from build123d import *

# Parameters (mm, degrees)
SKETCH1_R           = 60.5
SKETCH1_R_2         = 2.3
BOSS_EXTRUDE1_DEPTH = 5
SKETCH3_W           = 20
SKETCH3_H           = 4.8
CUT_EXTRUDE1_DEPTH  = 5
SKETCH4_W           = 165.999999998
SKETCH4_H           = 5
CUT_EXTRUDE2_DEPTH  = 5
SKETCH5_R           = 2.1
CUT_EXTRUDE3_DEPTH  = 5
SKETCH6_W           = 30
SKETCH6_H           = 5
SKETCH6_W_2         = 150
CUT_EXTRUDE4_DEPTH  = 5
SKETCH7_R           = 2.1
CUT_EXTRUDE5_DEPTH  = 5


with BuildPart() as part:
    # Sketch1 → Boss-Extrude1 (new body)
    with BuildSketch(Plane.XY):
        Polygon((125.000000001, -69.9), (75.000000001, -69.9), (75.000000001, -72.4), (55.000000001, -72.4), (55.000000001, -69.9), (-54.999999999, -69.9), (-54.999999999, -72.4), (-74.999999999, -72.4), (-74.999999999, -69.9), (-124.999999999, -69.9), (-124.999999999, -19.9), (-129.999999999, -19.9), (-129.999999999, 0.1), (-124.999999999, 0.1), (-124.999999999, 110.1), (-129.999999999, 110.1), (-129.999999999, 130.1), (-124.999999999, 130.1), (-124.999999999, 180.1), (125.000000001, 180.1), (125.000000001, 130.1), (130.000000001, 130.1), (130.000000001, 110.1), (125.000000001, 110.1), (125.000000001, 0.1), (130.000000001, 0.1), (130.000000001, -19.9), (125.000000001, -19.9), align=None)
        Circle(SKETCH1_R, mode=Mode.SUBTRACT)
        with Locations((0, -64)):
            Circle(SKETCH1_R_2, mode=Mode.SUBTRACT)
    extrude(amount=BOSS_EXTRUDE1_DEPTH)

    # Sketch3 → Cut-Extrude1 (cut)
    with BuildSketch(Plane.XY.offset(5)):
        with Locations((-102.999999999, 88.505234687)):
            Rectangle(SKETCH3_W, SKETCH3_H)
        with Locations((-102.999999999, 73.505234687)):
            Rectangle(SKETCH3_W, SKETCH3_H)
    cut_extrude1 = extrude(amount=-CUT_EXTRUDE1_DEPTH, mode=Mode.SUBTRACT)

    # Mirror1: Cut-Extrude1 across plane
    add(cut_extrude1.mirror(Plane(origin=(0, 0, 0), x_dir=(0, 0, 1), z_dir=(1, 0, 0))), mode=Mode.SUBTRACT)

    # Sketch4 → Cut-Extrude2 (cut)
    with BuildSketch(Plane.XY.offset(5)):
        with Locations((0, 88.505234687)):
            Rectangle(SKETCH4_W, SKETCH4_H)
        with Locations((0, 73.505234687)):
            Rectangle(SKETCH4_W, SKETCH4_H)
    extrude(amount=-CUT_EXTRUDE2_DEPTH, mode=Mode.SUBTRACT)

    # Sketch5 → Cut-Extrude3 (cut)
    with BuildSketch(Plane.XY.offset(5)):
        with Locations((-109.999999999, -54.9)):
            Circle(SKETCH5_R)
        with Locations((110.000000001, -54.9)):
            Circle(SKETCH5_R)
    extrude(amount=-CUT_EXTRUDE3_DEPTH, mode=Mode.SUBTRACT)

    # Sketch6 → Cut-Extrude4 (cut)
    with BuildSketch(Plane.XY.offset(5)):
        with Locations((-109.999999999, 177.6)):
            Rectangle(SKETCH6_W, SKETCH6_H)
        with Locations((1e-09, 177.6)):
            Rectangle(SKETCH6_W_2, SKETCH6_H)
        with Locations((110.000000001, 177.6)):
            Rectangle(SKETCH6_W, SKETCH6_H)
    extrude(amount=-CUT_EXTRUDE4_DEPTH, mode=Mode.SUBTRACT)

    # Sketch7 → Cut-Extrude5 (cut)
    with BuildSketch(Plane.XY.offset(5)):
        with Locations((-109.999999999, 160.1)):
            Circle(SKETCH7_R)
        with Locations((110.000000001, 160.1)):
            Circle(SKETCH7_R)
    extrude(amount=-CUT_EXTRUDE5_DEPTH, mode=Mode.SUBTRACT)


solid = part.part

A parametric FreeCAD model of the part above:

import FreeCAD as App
import Part
import Sketcher

doc = App.newDocument("Part")
params = doc.addObject("Spreadsheet::Sheet", "Params")
for row, (alias, value) in enumerate([
    ("sketch1_diameter", "121 mm"),
    ("sketch1_diameter2", "4.6 mm"),
    ("sketch1_width", "50 mm"),
    ("sketch1_width2", "5 mm"),
    ("sketch1_width3", "250 mm"),
    ("pad1_length", "5 mm"),
    ("sketch2_width", "20 mm"),
    ("sketch2_height", "4.8 mm"),
    ("pocket1_length", "5 mm"),
    ("sketch3_width", "166 mm"),
    ("sketch3_height", "5 mm"),
    ("pocket2_length", "5 mm"),
    ("sketch4_diameter", "4.2 mm"),
    ("pocket3_length", "5 mm"),
    ("sketch5_width", "30 mm"),
    ("sketch5_width2", "150 mm"),
    ("sketch5_height", "5 mm"),
    ("pocket4_length", "5 mm"),
    ("sketch6_diameter", "4.2 mm"),
    ("pocket5_length", "5 mm"),
], start=1):
    params.set(f"A{row}", alias)
    params.set(f"B{row}", "=" + value)
    params.setAlias(f"B{row}", alias)

body = doc.addObject("PartDesign::Body", "Body")

sketch1 = body.newObject("Sketcher::SketchObject", "Sketch")
sketch1.AttachmentSupport = (doc.getObject("XY_Plane"), [""])
sketch1.MapMode = "FlatFace"
sketch1.addGeometry(Part.LineSegment(App.Vector(75, -69.9, 0), App.Vector(125, -69.9, 0)), False)
sketch1.addGeometry(Part.LineSegment(App.Vector(125, -69.9, 0), App.Vector(125, -19.9, 0)), False)
sketch1.addGeometry(Part.LineSegment(App.Vector(125, -19.9, 0), App.Vector(130, -19.9, 0)), False)
sketch1.addGeometry(Part.LineSegment(App.Vector(130, -19.9, 0), App.Vector(130, 0.1, 0)), False)
sketch1.addGeometry(Part.LineSegment(App.Vector(130, 0.1, 0), App.Vector(125, 0.1, 0)), False)
sketch1.addGeometry(Part.LineSegment(App.Vector(125, 0.1, 0), App.Vector(125, 110.1, 0)), False)
sketch1.addGeometry(Part.LineSegment(App.Vector(125, 110.1, 0), App.Vector(130, 110.1, 0)), False)
sketch1.addGeometry(Part.LineSegment(App.Vector(130, 110.1, 0), App.Vector(130, 130.1, 0)), False)
sketch1.addGeometry(Part.LineSegment(App.Vector(130, 130.1, 0), App.Vector(125, 130.1, 0)), False)
sketch1.addGeometry(Part.LineSegment(App.Vector(125, 130.1, 0), App.Vector(125, 180.1, 0)), False)
sketch1.addGeometry(Part.LineSegment(App.Vector(125, 180.1, 0), App.Vector(-125, 180.1, 0)), False)
sketch1.addGeometry(Part.LineSegment(App.Vector(-125, 180.1, 0), App.Vector(-125, 130.1, 0)), False)
sketch1.addGeometry(Part.LineSegment(App.Vector(-125, 130.1, 0), App.Vector(-130, 130.1, 0)), False)
sketch1.addGeometry(Part.LineSegment(App.Vector(-130, 130.1, 0), App.Vector(-130, 110.1, 0)), False)
sketch1.addGeometry(Part.LineSegment(App.Vector(-130, 110.1, 0), App.Vector(-125, 110.1, 0)), False)
sketch1.addGeometry(Part.LineSegment(App.Vector(-125, 110.1, 0), App.Vector(-125, 0.1, 0)), False)
sketch1.addGeometry(Part.LineSegment(App.Vector(-125, 0.1, 0), App.Vector(-130, 0.1, 0)), False)
sketch1.addGeometry(Part.LineSegment(App.Vector(-130, 0.1, 0), App.Vector(-130, -19.9, 0)), False)
sketch1.addGeometry(Part.LineSegment(App.Vector(-130, -19.9, 0), App.Vector(-125, -19.9, 0)), False)
sketch1.addGeometry(Part.LineSegment(App.Vector(-125, -19.9, 0), App.Vector(-125, -69.9, 0)), False)
sketch1.addGeometry(Part.LineSegment(App.Vector(-125, -69.9, 0), App.Vector(-75, -69.9, 0)), False)
sketch1.addGeometry(Part.LineSegment(App.Vector(-75, -69.9, 0), App.Vector(-75, -72.4, 0)), False)
sketch1.addGeometry(Part.LineSegment(App.Vector(-75, -72.4, 0), App.Vector(-55, -72.4, 0)), False)
sketch1.addGeometry(Part.LineSegment(App.Vector(-55, -72.4, 0), App.Vector(-55, -69.9, 0)), False)
sketch1.addGeometry(Part.LineSegment(App.Vector(-55, -69.9, 0), App.Vector(55, -69.9, 0)), False)
sketch1.addGeometry(Part.LineSegment(App.Vector(55, -69.9, 0), App.Vector(55, -72.4, 0)), False)
sketch1.addGeometry(Part.LineSegment(App.Vector(55, -72.4, 0), App.Vector(75, -72.4, 0)), False)
sketch1.addGeometry(Part.LineSegment(App.Vector(75, -72.4, 0), App.Vector(75, -69.9, 0)), False)
sketch1.addGeometry(Part.Circle(App.Vector(0, -64, 0), App.Vector(0, 0, 1), 2.3), False)
sketch1.addGeometry(Part.Circle(App.Vector(0, 0, 0), App.Vector(0, 0, 1), 60.5), False)
sketch1.addConstraint(Sketcher.Constraint("Coincident", 0, 2, 1, 1))
sketch1.addConstraint(Sketcher.Constraint("Coincident", 1, 2, 2, 1))
sketch1.addConstraint(Sketcher.Constraint("Coincident", 2, 2, 3, 1))
sketch1.addConstraint(Sketcher.Constraint("Coincident", 3, 2, 4, 1))
sketch1.addConstraint(Sketcher.Constraint("Coincident", 4, 2, 5, 1))
sketch1.addConstraint(Sketcher.Constraint("Coincident", 5, 2, 6, 1))
sketch1.addConstraint(Sketcher.Constraint("Coincident", 6, 2, 7, 1))
sketch1.addConstraint(Sketcher.Constraint("Coincident", 7, 2, 8, 1))
sketch1.addConstraint(Sketcher.Constraint("Coincident", 8, 2, 9, 1))
sketch1.addConstraint(Sketcher.Constraint("Coincident", 9, 2, 10, 1))
sketch1.addConstraint(Sketcher.Constraint("Coincident", 10, 2, 11, 1))
sketch1.addConstraint(Sketcher.Constraint("Coincident", 11, 2, 12, 1))
sketch1.addConstraint(Sketcher.Constraint("Coincident", 12, 2, 13, 1))
sketch1.addConstraint(Sketcher.Constraint("Coincident", 13, 2, 14, 1))
sketch1.addConstraint(Sketcher.Constraint("Coincident", 14, 2, 15, 1))
sketch1.addConstraint(Sketcher.Constraint("Coincident", 15, 2, 16, 1))
sketch1.addConstraint(Sketcher.Constraint("Coincident", 16, 2, 17, 1))
sketch1.addConstraint(Sketcher.Constraint("Coincident", 17, 2, 18, 1))
sketch1.addConstraint(Sketcher.Constraint("Coincident", 18, 2, 19, 1))
sketch1.addConstraint(Sketcher.Constraint("Coincident", 19, 2, 20, 1))
sketch1.addConstraint(Sketcher.Constraint("Coincident", 20, 2, 21, 1))
sketch1.addConstraint(Sketcher.Constraint("Coincident", 21, 2, 22, 1))
sketch1.addConstraint(Sketcher.Constraint("Coincident", 22, 2, 23, 1))
sketch1.addConstraint(Sketcher.Constraint("Coincident", 23, 2, 24, 1))
sketch1.addConstraint(Sketcher.Constraint("Coincident", 24, 2, 25, 1))
sketch1.addConstraint(Sketcher.Constraint("Coincident", 25, 2, 26, 1))
sketch1.addConstraint(Sketcher.Constraint("Coincident", 26, 2, 27, 1))
sketch1.addConstraint(Sketcher.Constraint("Coincident", 27, 2, 0, 1))
sketch1.addConstraint(Sketcher.Constraint("Horizontal", 0))
sketch1.addConstraint(Sketcher.Constraint("Vertical", 1))
sketch1.addConstraint(Sketcher.Constraint("Horizontal", 2))
sketch1.addConstraint(Sketcher.Constraint("Vertical", 3))
sketch1.addConstraint(Sketcher.Constraint("Horizontal", 4))
sketch1.addConstraint(Sketcher.Constraint("Vertical", 5))
sketch1.addConstraint(Sketcher.Constraint("Horizontal", 6))
sketch1.addConstraint(Sketcher.Constraint("Vertical", 7))
sketch1.addConstraint(Sketcher.Constraint("Horizontal", 8))
sketch1.addConstraint(Sketcher.Constraint("Vertical", 9))
sketch1.addConstraint(Sketcher.Constraint("Horizontal", 10))
sketch1.addConstraint(Sketcher.Constraint("Vertical", 11))
sketch1.addConstraint(Sketcher.Constraint("Horizontal", 12))
sketch1.addConstraint(Sketcher.Constraint("Vertical", 13))
sketch1.addConstraint(Sketcher.Constraint("Horizontal", 14))
sketch1.addConstraint(Sketcher.Constraint("Vertical", 15))
sketch1.addConstraint(Sketcher.Constraint("Horizontal", 16))
sketch1.addConstraint(Sketcher.Constraint("Vertical", 17))
sketch1.addConstraint(Sketcher.Constraint("Horizontal", 18))
sketch1.addConstraint(Sketcher.Constraint("Vertical", 19))
sketch1.addConstraint(Sketcher.Constraint("Horizontal", 20))
sketch1.addConstraint(Sketcher.Constraint("Vertical", 21))
sketch1.addConstraint(Sketcher.Constraint("Horizontal", 22))
sketch1.addConstraint(Sketcher.Constraint("Vertical", 23))
sketch1.addConstraint(Sketcher.Constraint("Horizontal", 24))
sketch1.addConstraint(Sketcher.Constraint("Vertical", 25))
sketch1.addConstraint(Sketcher.Constraint("Horizontal", 26))
sketch1.addConstraint(Sketcher.Constraint("Vertical", 27))
sketch1.addConstraint(Sketcher.Constraint("Coincident", 29, 3, -1, 1))
sketch1.addConstraint(Sketcher.Constraint("Symmetric", 8, 2, 11, 2, -2))
sketch1.addConstraint(Sketcher.Constraint("Symmetric", 6, 2, 13, 2, -2))
sketch1.addConstraint(Sketcher.Constraint("Symmetric", 4, 2, 15, 2, -2))
sketch1.addConstraint(Sketcher.Constraint("Symmetric", 2, 2, 17, 2, -2))
sketch1.addConstraint(Sketcher.Constraint("Symmetric", 0, 2, 19, 2, -2))
sketch1.addConstraint(Sketcher.Constraint("Symmetric", 22, 2, 25, 2, -2))
sketch1.addConstraint(Sketcher.Constraint("PointOnObject", 28, 3, -2))
sketch1.addConstraint(Sketcher.Constraint("Horizontal", 20, 2, 23, 2))
sketch1.addConstraint(Sketcher.Constraint("Vertical", 1, 2, 4, 2))
sketch1.addConstraint(Sketcher.Constraint("Vertical", 3, 2, 6, 2))
sketch1.addConstraint(Sketcher.Constraint("Vertical", 5, 2, 8, 2))
sketch1.addConstraint(Sketcher.Constraint("Equal", 0, 20))
sketch1.addConstraint(Sketcher.Constraint("Equal", 20, 1))
sketch1.addConstraint(Sketcher.Constraint("Equal", 26, 3))
sketch1.addConstraint(Sketcher.Constraint("Equal", 24, 5))
sketch1.addConstraint(Sketcher.Constraint("Equal", 3, 7))
sketch1.addConstraint(Sketcher.Constraint("Equal", 1, 9))
sketch1.addConstraint(Sketcher.Constraint("Diameter", 29, 121.0))
sketch1.addConstraint(Sketcher.Constraint("Diameter", 28, 4.6))
sketch1.addConstraint(Sketcher.Constraint("DistanceX", 0, 1, 0, 2, 50.0))
sketch1.addConstraint(Sketcher.Constraint("DistanceX", 2, 1, 2, 2, 5.0))
sketch1.addConstraint(Sketcher.Constraint("DistanceX", 10, 2, 10, 1, 250.0))
sketch1.addConstraint(Sketcher.Constraint("DistanceX", 22, 1, 22, 2, 20.0))
sketch1.addConstraint(Sketcher.Constraint("DistanceY", 21, 2, 21, 1, 2.5))
sketch1.addConstraint(Sketcher.Constraint("DistanceY", 28, 3, -1, 1, 64.0))
sketch1.addConstraint(Sketcher.Constraint("DistanceY", 0, 2, -1, 1, 69.9))
sketch1.setExpression("Constraints[74]", "Params.sketch1_diameter")
sketch1.setExpression("Constraints[75]", "Params.sketch1_diameter2")
sketch1.setExpression("Constraints[76]", "Params.sketch1_width")
sketch1.setExpression("Constraints[77]", "Params.sketch1_width2")
sketch1.setExpression("Constraints[78]", "Params.sketch1_width3")
pad1 = body.newObject("PartDesign::Pad", "Pad")
pad1.Profile = sketch1
pad1.setExpression("Length", "Params.pad1_length")

sketch2 = body.newObject("Sketcher::SketchObject", "Sketch001")
sketch2.AttachmentSupport = (doc.getObject("XY_Plane"), [""])
sketch2.MapMode = "FlatFace"
sketch2.AttachmentOffset = App.Placement(App.Vector(0, 0, 5), App.Rotation())
sketch2.addGeometry(Part.LineSegment(App.Vector(-113, 90.9, 0), App.Vector(-113, 86.1, 0)), False)
sketch2.addGeometry(Part.LineSegment(App.Vector(-113, 86.1, 0), App.Vector(-93, 86.1, 0)), False)
sketch2.addGeometry(Part.LineSegment(App.Vector(-93, 86.1, 0), App.Vector(-93, 90.9, 0)), False)
sketch2.addGeometry(Part.LineSegment(App.Vector(-93, 90.9, 0), App.Vector(-113, 90.9, 0)), False)
sketch2.addGeometry(Part.LineSegment(App.Vector(-113, 75.9, 0), App.Vector(-113, 71.1, 0)), False)
sketch2.addGeometry(Part.LineSegment(App.Vector(-113, 71.1, 0), App.Vector(-93, 71.1, 0)), False)
sketch2.addGeometry(Part.LineSegment(App.Vector(-93, 71.1, 0), App.Vector(-93, 75.9, 0)), False)
sketch2.addGeometry(Part.LineSegment(App.Vector(-93, 75.9, 0), App.Vector(-113, 75.9, 0)), False)
sketch2.addConstraint(Sketcher.Constraint("Coincident", 0, 2, 1, 1))
sketch2.addConstraint(Sketcher.Constraint("Coincident", 1, 2, 2, 1))
sketch2.addConstraint(Sketcher.Constraint("Coincident", 2, 2, 3, 1))
sketch2.addConstraint(Sketcher.Constraint("Coincident", 3, 2, 0, 1))
sketch2.addConstraint(Sketcher.Constraint("Coincident", 4, 2, 5, 1))
sketch2.addConstraint(Sketcher.Constraint("Coincident", 5, 2, 6, 1))
sketch2.addConstraint(Sketcher.Constraint("Coincident", 6, 2, 7, 1))
sketch2.addConstraint(Sketcher.Constraint("Coincident", 7, 2, 4, 1))
sketch2.addConstraint(Sketcher.Constraint("Vertical", 0))
sketch2.addConstraint(Sketcher.Constraint("Horizontal", 1))
sketch2.addConstraint(Sketcher.Constraint("Vertical", 2))
sketch2.addConstraint(Sketcher.Constraint("Horizontal", 3))
sketch2.addConstraint(Sketcher.Constraint("Vertical", 4))
sketch2.addConstraint(Sketcher.Constraint("Horizontal", 5))
sketch2.addConstraint(Sketcher.Constraint("Vertical", 6))
sketch2.addConstraint(Sketcher.Constraint("Horizontal", 7))
sketch2.addConstraint(Sketcher.Constraint("Vertical", 3, 2, 4, 2))
sketch2.addConstraint(Sketcher.Constraint("Vertical", 2, 2, 5, 2))
sketch2.addConstraint(Sketcher.Constraint("Equal", 2, 4))
sketch2.addConstraint(Sketcher.Constraint("DistanceX", 1, 1, 1, 2, 20.0))
sketch2.addConstraint(Sketcher.Constraint("DistanceY", 0, 2, 0, 1, 4.8))
sketch2.addConstraint(Sketcher.Constraint("DistanceX", 0, 2, -1, 1, 113.0))
sketch2.addConstraint(Sketcher.Constraint("DistanceY", 4, 2, 0, 2, 15.0))
sketch2.addConstraint(Sketcher.Constraint("DistanceY", -1, 1, 0, 2, 86.105235))
sketch2.setExpression("Constraints[19]", "Params.sketch2_width")
sketch2.setExpression("Constraints[20]", "Params.sketch2_height")
pocket1 = body.newObject("PartDesign::Pocket", "Pocket")
pocket1.Profile = sketch2
pocket1.setExpression("Length", "Params.pocket1_length")
doc.recompute()

mirrored = body.newObject("PartDesign::Mirrored", "Mirrored")
mirrored.Originals = [pocket1]
mirrored.MirrorPlane = (doc.getObject("YZ_Plane"), [""])
body.Tip = mirrored

sketch3 = body.newObject("Sketcher::SketchObject", "Sketch002")
sketch3.AttachmentSupport = (doc.getObject("XY_Plane"), [""])
sketch3.MapMode = "FlatFace"
sketch3.AttachmentOffset = App.Placement(App.Vector(0, 0, 5), App.Rotation())
sketch3.addGeometry(Part.LineSegment(App.Vector(-83, 91, 0), App.Vector(-83, 86, 0)), False)
sketch3.addGeometry(Part.LineSegment(App.Vector(-83, 86, 0), App.Vector(83, 86, 0)), False)
sketch3.addGeometry(Part.LineSegment(App.Vector(83, 86, 0), App.Vector(83, 91, 0)), False)
sketch3.addGeometry(Part.LineSegment(App.Vector(83, 91, 0), App.Vector(-83, 91, 0)), False)
sketch3.addGeometry(Part.LineSegment(App.Vector(-83, 76, 0), App.Vector(-83, 71, 0)), False)
sketch3.addGeometry(Part.LineSegment(App.Vector(-83, 71, 0), App.Vector(83, 71, 0)), False)
sketch3.addGeometry(Part.LineSegment(App.Vector(83, 71, 0), App.Vector(83, 76, 0)), False)
sketch3.addGeometry(Part.LineSegment(App.Vector(83, 76, 0), App.Vector(-83, 76, 0)), False)
sketch3.addConstraint(Sketcher.Constraint("Coincident", 0, 2, 1, 1))
sketch3.addConstraint(Sketcher.Constraint("Coincident", 1, 2, 2, 1))
sketch3.addConstraint(Sketcher.Constraint("Coincident", 2, 2, 3, 1))
sketch3.addConstraint(Sketcher.Constraint("Coincident", 3, 2, 0, 1))
sketch3.addConstraint(Sketcher.Constraint("Coincident", 4, 2, 5, 1))
sketch3.addConstraint(Sketcher.Constraint("Coincident", 5, 2, 6, 1))
sketch3.addConstraint(Sketcher.Constraint("Coincident", 6, 2, 7, 1))
sketch3.addConstraint(Sketcher.Constraint("Coincident", 7, 2, 4, 1))
sketch3.addConstraint(Sketcher.Constraint("Vertical", 0))
sketch3.addConstraint(Sketcher.Constraint("Horizontal", 1))
sketch3.addConstraint(Sketcher.Constraint("Vertical", 2))
sketch3.addConstraint(Sketcher.Constraint("Horizontal", 3))
sketch3.addConstraint(Sketcher.Constraint("Vertical", 4))
sketch3.addConstraint(Sketcher.Constraint("Horizontal", 5))
sketch3.addConstraint(Sketcher.Constraint("Vertical", 6))
sketch3.addConstraint(Sketcher.Constraint("Horizontal", 7))
sketch3.addConstraint(Sketcher.Constraint("Vertical", 3, 2, 4, 2))
sketch3.addConstraint(Sketcher.Constraint("Vertical", 2, 2, 5, 2))
sketch3.addConstraint(Sketcher.Constraint("Equal", 2, 4))
sketch3.addConstraint(Sketcher.Constraint("DistanceX", 1, 1, 1, 2, 166.0))
sketch3.addConstraint(Sketcher.Constraint("DistanceY", 0, 2, 0, 1, 5.0))
sketch3.addConstraint(Sketcher.Constraint("DistanceX", 0, 2, -1, 1, 83.0))
sketch3.addConstraint(Sketcher.Constraint("DistanceY", 4, 2, 0, 2, 15.0))
sketch3.addConstraint(Sketcher.Constraint("DistanceY", -1, 1, 0, 2, 86.005235))
sketch3.setExpression("Constraints[19]", "Params.sketch3_width")
sketch3.setExpression("Constraints[20]", "Params.sketch3_height")
pocket2 = body.newObject("PartDesign::Pocket", "Pocket001")
pocket2.Profile = sketch3
pocket2.setExpression("Length", "Params.pocket2_length")

sketch4 = body.newObject("Sketcher::SketchObject", "Sketch003")
sketch4.AttachmentSupport = (doc.getObject("XY_Plane"), [""])
sketch4.MapMode = "FlatFace"
sketch4.AttachmentOffset = App.Placement(App.Vector(0, 0, 5), App.Rotation())
sketch4.addGeometry(Part.Circle(App.Vector(-110, -54.9, 0), App.Vector(0, 0, 1), 2.1), False)
sketch4.addGeometry(Part.Circle(App.Vector(110, -54.9, 0), App.Vector(0, 0, 1), 2.1), False)
sketch4.addConstraint(Sketcher.Constraint("Equal", 0, 1))
sketch4.addConstraint(Sketcher.Constraint("Symmetric", 0, 3, 1, 3, -2))
sketch4.addConstraint(Sketcher.Constraint("Diameter", 0, 4.2))
sketch4.addConstraint(Sketcher.Constraint("DistanceX", 0, 3, -1, 1, 110.0))
sketch4.addConstraint(Sketcher.Constraint("DistanceY", 0, 3, -1, 1, 54.9))
sketch4.setExpression("Constraints[2]", "Params.sketch4_diameter")
pocket3 = body.newObject("PartDesign::Pocket", "Pocket002")
pocket3.Profile = sketch4
pocket3.setExpression("Length", "Params.pocket3_length")

sketch5 = body.newObject("Sketcher::SketchObject", "Sketch004")
sketch5.AttachmentSupport = (doc.getObject("XY_Plane"), [""])
sketch5.MapMode = "FlatFace"
sketch5.AttachmentOffset = App.Placement(App.Vector(0, 0, 5), App.Rotation())
sketch5.addGeometry(Part.LineSegment(App.Vector(-125, 180, 0), App.Vector(-125, 175, 0)), False)
sketch5.addGeometry(Part.LineSegment(App.Vector(-125, 175, 0), App.Vector(-95, 175, 0)), False)
sketch5.addGeometry(Part.LineSegment(App.Vector(-95, 175, 0), App.Vector(-95, 180, 0)), False)
sketch5.addGeometry(Part.LineSegment(App.Vector(-95, 180, 0), App.Vector(-125, 180, 0)), False)
sketch5.addGeometry(Part.LineSegment(App.Vector(-75, 180, 0), App.Vector(-75, 175, 0)), False)
sketch5.addGeometry(Part.LineSegment(App.Vector(-75, 175, 0), App.Vector(75, 175, 0)), False)
sketch5.addGeometry(Part.LineSegment(App.Vector(75, 175, 0), App.Vector(75, 180, 0)), False)
sketch5.addGeometry(Part.LineSegment(App.Vector(75, 180, 0), App.Vector(-75, 180, 0)), False)
sketch5.addGeometry(Part.LineSegment(App.Vector(95, 180, 0), App.Vector(95, 175, 0)), False)
sketch5.addGeometry(Part.LineSegment(App.Vector(95, 175, 0), App.Vector(125, 175, 0)), False)
sketch5.addGeometry(Part.LineSegment(App.Vector(125, 175, 0), App.Vector(125, 180, 0)), False)
sketch5.addGeometry(Part.LineSegment(App.Vector(125, 180, 0), App.Vector(95, 180, 0)), False)
sketch5.addConstraint(Sketcher.Constraint("Coincident", 0, 2, 1, 1))
sketch5.addConstraint(Sketcher.Constraint("Coincident", 1, 2, 2, 1))
sketch5.addConstraint(Sketcher.Constraint("Coincident", 2, 2, 3, 1))
sketch5.addConstraint(Sketcher.Constraint("Coincident", 3, 2, 0, 1))
sketch5.addConstraint(Sketcher.Constraint("Coincident", 4, 2, 5, 1))
sketch5.addConstraint(Sketcher.Constraint("Coincident", 5, 2, 6, 1))
sketch5.addConstraint(Sketcher.Constraint("Coincident", 6, 2, 7, 1))
sketch5.addConstraint(Sketcher.Constraint("Coincident", 7, 2, 4, 1))
sketch5.addConstraint(Sketcher.Constraint("Coincident", 8, 2, 9, 1))
sketch5.addConstraint(Sketcher.Constraint("Coincident", 9, 2, 10, 1))
sketch5.addConstraint(Sketcher.Constraint("Coincident", 10, 2, 11, 1))
sketch5.addConstraint(Sketcher.Constraint("Coincident", 11, 2, 8, 1))
sketch5.addConstraint(Sketcher.Constraint("Vertical", 0))
sketch5.addConstraint(Sketcher.Constraint("Horizontal", 1))
sketch5.addConstraint(Sketcher.Constraint("Vertical", 2))
sketch5.addConstraint(Sketcher.Constraint("Horizontal", 3))
sketch5.addConstraint(Sketcher.Constraint("Vertical", 4))
sketch5.addConstraint(Sketcher.Constraint("Horizontal", 5))
sketch5.addConstraint(Sketcher.Constraint("Vertical", 6))
sketch5.addConstraint(Sketcher.Constraint("Horizontal", 7))
sketch5.addConstraint(Sketcher.Constraint("Vertical", 8))
sketch5.addConstraint(Sketcher.Constraint("Horizontal", 9))
sketch5.addConstraint(Sketcher.Constraint("Vertical", 10))
sketch5.addConstraint(Sketcher.Constraint("Horizontal", 11))
sketch5.addConstraint(Sketcher.Constraint("Symmetric", 1, 2, 8, 2, -2))
sketch5.addConstraint(Sketcher.Constraint("Symmetric", 3, 2, 10, 2, -2))
sketch5.addConstraint(Sketcher.Constraint("Horizontal", 1, 2, 4, 2))
sketch5.addConstraint(Sketcher.Constraint("Horizontal", 3, 2, 6, 2))
sketch5.addConstraint(Sketcher.Constraint("DistanceX", 1, 1, 1, 2, 30.0))
sketch5.addConstraint(Sketcher.Constraint("DistanceX", 5, 1, 5, 2, 150.0))
sketch5.addConstraint(Sketcher.Constraint("DistanceY", 0, 2, 0, 1, 5.0))
sketch5.addConstraint(Sketcher.Constraint("DistanceX", 0, 2, -1, 1, 125.0))
sketch5.addConstraint(Sketcher.Constraint("DistanceX", 4, 2, -1, 1, 75.0))
sketch5.addConstraint(Sketcher.Constraint("DistanceY", -1, 1, 0, 2, 175.1))
sketch5.setExpression("Constraints[28]", "Params.sketch5_width")
sketch5.setExpression("Constraints[29]", "Params.sketch5_width2")
sketch5.setExpression("Constraints[30]", "Params.sketch5_height")
pocket4 = body.newObject("PartDesign::Pocket", "Pocket003")
pocket4.Profile = sketch5
pocket4.setExpression("Length", "Params.pocket4_length")

sketch6 = body.newObject("Sketcher::SketchObject", "Sketch005")
sketch6.AttachmentSupport = (doc.getObject("XY_Plane"), [""])
sketch6.MapMode = "FlatFace"
sketch6.AttachmentOffset = App.Placement(App.Vector(0, 0, 5), App.Rotation())
sketch6.addGeometry(Part.Circle(App.Vector(-110, 160.1, 0), App.Vector(0, 0, 1), 2.1), False)
sketch6.addGeometry(Part.Circle(App.Vector(110, 160.1, 0), App.Vector(0, 0, 1), 2.1), False)
sketch6.addConstraint(Sketcher.Constraint("Equal", 0, 1))
sketch6.addConstraint(Sketcher.Constraint("Symmetric", 0, 3, 1, 3, -2))
sketch6.addConstraint(Sketcher.Constraint("Diameter", 0, 4.2))
sketch6.addConstraint(Sketcher.Constraint("DistanceX", 0, 3, -1, 1, 110.0))
sketch6.addConstraint(Sketcher.Constraint("DistanceY", -1, 1, 0, 3, 160.1))
sketch6.setExpression("Constraints[2]", "Params.sketch6_diameter")
pocket5 = body.newObject("PartDesign::Pocket", "Pocket004")
pocket5.Profile = sketch6
pocket5.setExpression("Length", "Params.pocket5_length")

doc.recompute()
